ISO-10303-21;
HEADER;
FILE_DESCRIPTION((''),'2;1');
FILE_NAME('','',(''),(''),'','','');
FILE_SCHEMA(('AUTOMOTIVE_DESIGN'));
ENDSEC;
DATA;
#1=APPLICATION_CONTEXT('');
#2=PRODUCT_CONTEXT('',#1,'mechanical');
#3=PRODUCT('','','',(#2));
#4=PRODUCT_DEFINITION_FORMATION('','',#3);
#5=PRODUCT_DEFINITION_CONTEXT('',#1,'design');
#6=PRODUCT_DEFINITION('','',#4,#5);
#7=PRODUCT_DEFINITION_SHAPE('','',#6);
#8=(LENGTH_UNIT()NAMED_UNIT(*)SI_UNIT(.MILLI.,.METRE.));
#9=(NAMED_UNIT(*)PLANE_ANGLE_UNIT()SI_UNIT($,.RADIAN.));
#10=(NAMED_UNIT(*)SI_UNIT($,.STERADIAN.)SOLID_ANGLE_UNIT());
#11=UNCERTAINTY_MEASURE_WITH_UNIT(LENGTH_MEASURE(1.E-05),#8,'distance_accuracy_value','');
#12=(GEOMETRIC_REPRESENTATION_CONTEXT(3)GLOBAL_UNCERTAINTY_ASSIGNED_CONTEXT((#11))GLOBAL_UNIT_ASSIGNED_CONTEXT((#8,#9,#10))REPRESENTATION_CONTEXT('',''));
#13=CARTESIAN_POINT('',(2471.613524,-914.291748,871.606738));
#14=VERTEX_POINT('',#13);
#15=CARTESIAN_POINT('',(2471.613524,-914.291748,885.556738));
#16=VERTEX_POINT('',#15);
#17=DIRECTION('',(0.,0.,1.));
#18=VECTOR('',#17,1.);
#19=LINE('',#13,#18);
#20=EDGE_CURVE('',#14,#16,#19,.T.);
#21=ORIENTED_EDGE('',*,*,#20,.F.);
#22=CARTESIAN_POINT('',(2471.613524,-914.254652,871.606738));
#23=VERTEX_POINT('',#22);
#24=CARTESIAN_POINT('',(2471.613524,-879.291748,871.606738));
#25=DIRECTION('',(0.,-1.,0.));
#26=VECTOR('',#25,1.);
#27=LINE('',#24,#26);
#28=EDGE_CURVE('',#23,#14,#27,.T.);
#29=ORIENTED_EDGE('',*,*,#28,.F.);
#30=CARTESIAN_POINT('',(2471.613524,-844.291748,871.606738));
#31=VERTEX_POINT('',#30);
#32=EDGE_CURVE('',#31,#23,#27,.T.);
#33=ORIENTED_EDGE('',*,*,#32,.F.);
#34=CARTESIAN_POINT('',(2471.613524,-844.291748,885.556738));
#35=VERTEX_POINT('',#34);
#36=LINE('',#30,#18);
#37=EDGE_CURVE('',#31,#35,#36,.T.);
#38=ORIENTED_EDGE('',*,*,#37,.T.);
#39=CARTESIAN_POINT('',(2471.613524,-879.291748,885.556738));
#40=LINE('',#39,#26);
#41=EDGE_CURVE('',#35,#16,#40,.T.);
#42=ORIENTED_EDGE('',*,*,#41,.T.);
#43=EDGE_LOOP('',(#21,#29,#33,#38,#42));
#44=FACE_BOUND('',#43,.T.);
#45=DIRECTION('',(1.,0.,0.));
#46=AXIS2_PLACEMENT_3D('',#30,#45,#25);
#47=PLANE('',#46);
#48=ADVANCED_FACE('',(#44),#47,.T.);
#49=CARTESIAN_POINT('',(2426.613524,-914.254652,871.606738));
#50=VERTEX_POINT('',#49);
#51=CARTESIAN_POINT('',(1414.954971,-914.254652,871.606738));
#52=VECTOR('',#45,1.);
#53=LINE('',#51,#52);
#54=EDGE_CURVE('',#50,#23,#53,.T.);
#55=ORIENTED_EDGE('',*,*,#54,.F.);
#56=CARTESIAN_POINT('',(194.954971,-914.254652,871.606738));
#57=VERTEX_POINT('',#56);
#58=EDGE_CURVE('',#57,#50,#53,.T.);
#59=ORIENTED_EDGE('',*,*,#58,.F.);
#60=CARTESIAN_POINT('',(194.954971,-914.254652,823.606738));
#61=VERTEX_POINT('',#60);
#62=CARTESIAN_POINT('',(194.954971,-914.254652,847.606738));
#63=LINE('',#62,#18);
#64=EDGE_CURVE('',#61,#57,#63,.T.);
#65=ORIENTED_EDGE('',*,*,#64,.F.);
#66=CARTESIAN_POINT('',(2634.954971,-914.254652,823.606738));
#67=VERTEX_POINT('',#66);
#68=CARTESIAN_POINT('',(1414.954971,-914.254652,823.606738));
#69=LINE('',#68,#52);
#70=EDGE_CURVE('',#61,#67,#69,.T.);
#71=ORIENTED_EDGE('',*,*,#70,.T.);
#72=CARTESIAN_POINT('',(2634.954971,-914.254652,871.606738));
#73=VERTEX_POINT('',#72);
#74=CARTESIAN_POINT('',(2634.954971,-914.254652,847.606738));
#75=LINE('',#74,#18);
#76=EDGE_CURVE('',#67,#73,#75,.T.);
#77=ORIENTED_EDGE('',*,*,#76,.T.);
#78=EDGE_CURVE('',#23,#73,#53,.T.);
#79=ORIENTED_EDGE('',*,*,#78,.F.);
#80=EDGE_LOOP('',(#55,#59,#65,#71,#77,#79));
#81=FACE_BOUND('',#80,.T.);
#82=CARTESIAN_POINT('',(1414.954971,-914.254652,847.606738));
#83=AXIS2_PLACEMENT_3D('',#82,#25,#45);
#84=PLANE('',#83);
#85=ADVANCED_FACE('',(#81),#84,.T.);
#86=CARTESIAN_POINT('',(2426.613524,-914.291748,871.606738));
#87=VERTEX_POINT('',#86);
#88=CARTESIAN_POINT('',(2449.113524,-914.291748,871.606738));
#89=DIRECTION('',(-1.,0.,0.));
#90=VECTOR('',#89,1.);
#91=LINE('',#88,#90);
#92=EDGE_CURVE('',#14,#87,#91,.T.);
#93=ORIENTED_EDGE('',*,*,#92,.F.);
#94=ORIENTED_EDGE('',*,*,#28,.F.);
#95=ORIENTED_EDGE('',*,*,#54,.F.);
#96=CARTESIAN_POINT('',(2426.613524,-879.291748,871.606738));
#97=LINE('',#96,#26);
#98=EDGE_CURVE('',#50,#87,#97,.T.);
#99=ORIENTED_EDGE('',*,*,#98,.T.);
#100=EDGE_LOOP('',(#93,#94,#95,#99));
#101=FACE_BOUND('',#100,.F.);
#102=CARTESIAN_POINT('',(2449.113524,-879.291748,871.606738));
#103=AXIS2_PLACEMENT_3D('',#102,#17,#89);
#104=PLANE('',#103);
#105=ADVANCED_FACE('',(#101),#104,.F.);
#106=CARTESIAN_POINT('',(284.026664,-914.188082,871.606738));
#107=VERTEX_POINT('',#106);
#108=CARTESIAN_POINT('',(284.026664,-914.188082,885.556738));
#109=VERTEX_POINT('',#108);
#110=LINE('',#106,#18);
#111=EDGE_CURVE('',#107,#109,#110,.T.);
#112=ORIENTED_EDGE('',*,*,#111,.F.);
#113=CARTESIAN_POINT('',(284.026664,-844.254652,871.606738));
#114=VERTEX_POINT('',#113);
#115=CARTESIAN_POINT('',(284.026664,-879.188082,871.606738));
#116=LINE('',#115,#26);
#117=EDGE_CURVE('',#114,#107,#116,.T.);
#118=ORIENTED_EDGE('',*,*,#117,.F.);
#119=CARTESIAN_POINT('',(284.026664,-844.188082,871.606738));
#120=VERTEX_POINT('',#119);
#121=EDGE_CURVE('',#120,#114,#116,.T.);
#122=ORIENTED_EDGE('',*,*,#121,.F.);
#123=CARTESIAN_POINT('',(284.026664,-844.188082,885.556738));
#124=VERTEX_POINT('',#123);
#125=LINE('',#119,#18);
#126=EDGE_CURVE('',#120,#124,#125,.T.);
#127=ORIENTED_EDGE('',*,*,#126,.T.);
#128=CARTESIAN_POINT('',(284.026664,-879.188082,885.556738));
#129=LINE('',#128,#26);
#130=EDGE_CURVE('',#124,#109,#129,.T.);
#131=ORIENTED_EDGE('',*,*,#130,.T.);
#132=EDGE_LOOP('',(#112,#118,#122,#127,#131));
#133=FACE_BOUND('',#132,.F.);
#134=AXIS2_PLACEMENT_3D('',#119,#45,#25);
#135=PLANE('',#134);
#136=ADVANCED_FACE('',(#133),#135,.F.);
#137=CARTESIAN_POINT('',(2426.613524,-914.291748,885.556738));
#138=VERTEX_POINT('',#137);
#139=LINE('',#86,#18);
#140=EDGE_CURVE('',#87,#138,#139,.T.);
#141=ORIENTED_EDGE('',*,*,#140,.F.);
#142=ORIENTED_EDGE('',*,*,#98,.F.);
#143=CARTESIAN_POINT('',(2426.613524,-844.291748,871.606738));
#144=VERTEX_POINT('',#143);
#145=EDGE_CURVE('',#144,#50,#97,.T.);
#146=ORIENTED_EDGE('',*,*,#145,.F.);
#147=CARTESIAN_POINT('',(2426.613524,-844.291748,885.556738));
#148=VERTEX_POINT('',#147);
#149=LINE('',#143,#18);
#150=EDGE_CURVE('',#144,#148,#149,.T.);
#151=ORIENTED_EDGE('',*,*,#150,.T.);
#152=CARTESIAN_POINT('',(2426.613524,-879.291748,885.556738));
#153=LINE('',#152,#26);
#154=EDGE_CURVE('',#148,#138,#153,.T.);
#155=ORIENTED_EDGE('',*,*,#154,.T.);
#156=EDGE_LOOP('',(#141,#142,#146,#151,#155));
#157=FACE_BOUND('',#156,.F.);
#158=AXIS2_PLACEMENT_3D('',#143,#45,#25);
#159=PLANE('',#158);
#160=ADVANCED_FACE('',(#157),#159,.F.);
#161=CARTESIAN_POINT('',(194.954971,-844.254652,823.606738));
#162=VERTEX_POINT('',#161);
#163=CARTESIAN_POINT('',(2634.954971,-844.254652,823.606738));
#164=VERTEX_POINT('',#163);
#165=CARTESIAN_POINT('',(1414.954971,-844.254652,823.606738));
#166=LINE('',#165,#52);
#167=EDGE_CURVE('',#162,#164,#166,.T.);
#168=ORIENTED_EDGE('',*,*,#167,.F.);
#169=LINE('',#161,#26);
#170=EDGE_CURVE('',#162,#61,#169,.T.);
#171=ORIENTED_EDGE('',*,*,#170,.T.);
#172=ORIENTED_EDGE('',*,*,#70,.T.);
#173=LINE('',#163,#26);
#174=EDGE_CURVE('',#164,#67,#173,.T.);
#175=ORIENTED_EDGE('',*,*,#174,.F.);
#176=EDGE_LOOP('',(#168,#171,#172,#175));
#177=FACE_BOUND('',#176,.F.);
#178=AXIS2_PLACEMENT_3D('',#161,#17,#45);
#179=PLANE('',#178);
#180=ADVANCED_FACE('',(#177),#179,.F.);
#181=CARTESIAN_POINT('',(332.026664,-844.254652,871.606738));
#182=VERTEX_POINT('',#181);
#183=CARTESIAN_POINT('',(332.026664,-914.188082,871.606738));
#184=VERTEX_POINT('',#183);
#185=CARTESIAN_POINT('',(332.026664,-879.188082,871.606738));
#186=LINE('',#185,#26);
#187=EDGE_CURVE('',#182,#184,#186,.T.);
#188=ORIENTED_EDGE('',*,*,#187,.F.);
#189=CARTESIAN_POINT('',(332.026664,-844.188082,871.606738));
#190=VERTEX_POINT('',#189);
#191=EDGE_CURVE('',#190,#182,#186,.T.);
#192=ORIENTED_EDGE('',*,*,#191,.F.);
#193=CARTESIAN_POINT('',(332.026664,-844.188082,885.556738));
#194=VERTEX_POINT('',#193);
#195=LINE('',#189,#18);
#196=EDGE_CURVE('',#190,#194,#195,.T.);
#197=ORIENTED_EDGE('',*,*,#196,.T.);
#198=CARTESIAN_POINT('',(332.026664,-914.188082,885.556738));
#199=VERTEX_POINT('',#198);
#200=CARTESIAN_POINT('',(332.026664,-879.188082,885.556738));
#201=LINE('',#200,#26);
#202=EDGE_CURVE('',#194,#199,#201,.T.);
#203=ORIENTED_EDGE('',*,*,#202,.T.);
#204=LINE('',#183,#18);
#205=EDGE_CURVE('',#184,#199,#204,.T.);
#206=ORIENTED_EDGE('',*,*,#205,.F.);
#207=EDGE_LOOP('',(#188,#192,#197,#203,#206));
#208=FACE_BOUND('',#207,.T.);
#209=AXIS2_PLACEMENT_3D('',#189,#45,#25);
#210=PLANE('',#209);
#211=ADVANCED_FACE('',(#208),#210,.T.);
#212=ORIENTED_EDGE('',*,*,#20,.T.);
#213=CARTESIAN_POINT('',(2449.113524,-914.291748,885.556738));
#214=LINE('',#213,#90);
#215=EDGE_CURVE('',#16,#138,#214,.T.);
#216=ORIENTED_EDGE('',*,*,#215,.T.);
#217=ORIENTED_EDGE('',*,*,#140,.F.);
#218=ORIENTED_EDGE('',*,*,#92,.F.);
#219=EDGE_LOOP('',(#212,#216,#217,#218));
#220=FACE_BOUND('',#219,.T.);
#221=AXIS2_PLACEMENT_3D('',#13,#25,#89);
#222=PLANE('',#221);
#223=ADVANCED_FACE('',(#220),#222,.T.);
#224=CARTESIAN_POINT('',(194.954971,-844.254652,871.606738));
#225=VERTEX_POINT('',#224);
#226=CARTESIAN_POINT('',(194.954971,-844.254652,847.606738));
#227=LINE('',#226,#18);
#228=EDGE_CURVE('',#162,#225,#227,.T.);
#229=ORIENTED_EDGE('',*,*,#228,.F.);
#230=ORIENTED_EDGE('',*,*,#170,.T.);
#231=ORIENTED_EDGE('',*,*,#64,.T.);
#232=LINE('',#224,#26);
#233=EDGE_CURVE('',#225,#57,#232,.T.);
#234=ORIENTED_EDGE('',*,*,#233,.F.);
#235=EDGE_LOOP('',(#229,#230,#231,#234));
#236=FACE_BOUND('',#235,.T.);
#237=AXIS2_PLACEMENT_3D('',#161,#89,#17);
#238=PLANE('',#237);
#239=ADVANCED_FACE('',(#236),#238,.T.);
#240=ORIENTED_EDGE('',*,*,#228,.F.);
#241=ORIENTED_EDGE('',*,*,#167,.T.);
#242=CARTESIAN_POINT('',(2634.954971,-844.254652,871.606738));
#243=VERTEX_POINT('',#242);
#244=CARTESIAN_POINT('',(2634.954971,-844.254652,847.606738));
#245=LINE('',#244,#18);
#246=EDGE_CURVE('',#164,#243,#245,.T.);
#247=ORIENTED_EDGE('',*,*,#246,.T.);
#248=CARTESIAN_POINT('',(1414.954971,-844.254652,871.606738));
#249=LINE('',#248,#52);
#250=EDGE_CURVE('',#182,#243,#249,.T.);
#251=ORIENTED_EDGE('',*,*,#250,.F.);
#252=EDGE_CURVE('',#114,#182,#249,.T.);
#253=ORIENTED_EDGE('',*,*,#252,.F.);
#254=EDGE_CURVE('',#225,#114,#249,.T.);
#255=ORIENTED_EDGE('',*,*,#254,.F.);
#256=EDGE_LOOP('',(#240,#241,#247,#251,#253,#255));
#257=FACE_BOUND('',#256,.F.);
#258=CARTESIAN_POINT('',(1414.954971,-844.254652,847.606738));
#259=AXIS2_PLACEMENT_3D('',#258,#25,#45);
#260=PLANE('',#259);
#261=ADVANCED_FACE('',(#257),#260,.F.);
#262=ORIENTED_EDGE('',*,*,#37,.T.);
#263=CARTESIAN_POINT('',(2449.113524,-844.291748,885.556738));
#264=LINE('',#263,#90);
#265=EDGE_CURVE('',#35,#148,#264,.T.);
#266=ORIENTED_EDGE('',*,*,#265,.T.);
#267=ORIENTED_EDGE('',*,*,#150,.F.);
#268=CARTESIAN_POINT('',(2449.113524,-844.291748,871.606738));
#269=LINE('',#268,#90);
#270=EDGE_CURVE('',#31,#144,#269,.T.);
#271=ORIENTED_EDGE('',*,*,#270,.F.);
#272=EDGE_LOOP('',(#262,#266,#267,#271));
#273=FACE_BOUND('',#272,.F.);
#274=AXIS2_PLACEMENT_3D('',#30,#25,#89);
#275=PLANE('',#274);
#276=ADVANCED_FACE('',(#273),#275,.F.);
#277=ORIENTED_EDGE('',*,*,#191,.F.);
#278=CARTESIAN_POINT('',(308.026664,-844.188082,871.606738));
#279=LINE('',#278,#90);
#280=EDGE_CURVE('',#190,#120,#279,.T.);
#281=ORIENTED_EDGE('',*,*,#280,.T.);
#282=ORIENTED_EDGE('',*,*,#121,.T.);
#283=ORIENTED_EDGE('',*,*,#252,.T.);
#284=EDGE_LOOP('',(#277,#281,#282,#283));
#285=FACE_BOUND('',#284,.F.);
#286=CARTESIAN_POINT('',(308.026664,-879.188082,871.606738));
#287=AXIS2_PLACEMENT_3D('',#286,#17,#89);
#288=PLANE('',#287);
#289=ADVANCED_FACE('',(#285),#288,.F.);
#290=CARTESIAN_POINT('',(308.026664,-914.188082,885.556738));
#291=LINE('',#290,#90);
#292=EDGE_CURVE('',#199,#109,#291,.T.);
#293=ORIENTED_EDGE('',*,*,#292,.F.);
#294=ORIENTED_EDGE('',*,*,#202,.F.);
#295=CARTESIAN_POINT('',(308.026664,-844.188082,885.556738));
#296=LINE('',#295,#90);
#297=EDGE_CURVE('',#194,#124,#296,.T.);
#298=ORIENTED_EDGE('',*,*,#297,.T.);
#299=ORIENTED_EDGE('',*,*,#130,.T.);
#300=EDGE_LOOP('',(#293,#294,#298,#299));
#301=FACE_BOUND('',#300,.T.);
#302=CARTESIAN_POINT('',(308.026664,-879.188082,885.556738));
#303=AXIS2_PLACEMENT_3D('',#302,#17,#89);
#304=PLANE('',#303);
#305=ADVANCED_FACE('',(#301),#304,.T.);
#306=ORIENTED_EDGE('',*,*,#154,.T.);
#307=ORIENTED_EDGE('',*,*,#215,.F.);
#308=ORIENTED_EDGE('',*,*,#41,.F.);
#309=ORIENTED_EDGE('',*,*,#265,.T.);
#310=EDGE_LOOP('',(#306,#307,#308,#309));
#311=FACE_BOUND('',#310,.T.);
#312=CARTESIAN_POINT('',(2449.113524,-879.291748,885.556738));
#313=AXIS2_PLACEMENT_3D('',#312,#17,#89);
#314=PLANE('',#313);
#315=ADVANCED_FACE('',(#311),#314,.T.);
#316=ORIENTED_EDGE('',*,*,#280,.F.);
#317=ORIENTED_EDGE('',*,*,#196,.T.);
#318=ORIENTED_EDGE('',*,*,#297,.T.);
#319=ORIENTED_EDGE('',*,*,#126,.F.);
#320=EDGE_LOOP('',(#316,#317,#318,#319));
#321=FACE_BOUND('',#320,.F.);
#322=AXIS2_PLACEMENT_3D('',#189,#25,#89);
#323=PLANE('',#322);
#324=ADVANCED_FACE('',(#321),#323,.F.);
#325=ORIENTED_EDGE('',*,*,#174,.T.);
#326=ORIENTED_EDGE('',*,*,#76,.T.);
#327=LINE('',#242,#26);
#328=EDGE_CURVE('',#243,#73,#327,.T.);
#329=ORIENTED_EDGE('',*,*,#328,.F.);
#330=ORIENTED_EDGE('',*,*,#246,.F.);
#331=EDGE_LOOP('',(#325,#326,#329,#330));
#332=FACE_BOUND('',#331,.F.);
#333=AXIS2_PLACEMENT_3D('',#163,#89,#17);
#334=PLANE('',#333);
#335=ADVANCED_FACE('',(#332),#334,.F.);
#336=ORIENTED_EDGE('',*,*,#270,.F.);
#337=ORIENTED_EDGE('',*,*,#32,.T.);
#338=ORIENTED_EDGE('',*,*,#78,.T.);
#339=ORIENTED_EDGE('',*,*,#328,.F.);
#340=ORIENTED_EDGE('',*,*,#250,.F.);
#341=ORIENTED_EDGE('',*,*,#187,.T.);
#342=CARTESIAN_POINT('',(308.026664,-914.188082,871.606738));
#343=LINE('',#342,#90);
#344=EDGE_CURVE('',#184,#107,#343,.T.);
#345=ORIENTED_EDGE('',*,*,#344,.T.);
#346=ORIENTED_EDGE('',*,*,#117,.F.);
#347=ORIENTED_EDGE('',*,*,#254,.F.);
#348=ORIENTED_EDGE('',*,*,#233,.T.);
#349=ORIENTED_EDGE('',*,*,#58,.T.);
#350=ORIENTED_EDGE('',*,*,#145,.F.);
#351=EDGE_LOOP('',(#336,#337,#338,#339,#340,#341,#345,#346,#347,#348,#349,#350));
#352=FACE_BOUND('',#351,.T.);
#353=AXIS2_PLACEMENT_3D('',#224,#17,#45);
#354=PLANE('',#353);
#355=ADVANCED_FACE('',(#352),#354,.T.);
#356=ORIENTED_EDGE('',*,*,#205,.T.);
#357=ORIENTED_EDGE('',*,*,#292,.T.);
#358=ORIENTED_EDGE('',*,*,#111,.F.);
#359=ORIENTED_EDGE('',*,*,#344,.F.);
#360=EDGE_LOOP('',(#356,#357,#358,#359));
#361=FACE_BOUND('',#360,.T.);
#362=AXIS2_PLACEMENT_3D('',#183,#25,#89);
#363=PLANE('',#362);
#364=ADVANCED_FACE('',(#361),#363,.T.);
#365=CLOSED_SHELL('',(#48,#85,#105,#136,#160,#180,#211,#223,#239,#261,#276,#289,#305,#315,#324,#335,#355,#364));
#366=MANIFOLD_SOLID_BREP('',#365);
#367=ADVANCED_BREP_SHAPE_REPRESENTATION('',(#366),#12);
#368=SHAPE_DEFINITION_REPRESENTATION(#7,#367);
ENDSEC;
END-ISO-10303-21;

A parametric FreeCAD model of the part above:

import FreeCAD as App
import Part
import Sketcher

doc = App.newDocument("Part")
params = doc.addObject("Spreadsheet::Sheet", "Params")
for row, (alias, value) in enumerate([
    ("sketch1_width", "2440 mm"),
    ("sketch1_height", "48 mm"),
    ("pad1_length", "70 mm"),
    ("sketch2_width", "45 mm"),
    ("sketch2_height", "70 mm"),
    ("pad2_length", "13.95 mm"),
    ("sketch3_width", "48 mm"),
    ("sketch3_height", "70 mm"),
    ("pad3_length", "13.95 mm"),
], start=1):
    params.set(f"A{row}", alias)
    params.set(f"B{row}", "=" + value)
    params.setAlias(f"B{row}", alias)

body = doc.addObject("PartDesign::Body", "Body")

sketch1 = doc.addObject("Sketcher::SketchObject", "Sketch")
body.addObject(sketch1)
sketch1.AttachmentSupport = (doc.XZ_Plane, [""])
sketch1.MapMode = "FlatFace"
sketch1.addGeometry(Part.LineSegment(App.Vector(195, 883, 0), App.Vector(195, 835, 0)), False)
sketch1.addGeometry(Part.LineSegment(App.Vector(195, 835, 0), App.Vector(2635, 835, 0)), False)
sketch1.addGeometry(Part.LineSegment(App.Vector(2635, 835, 0), App.Vector(2635, 883, 0)), False)
sketch1.addGeometry(Part.LineSegment(App.Vector(2635, 883, 0), App.Vector(195, 883, 0)), False)
sketch1.addConstraint(Sketcher.Constraint("Coincident", 0, 2, 1, 1))
sketch1.addConstraint(Sketcher.Constraint("Coincident", 1, 2, 2, 1))
sketch1.addConstraint(Sketcher.Constraint("Coincident", 2, 2, 3, 1))
sketch1.addConstraint(Sketcher.Constraint("Coincident", 3, 2, 0, 1))
sketch1.addConstraint(Sketcher.Constraint("Vertical", 0))
sketch1.addConstraint(Sketcher.Constraint("Horizontal", 1))
sketch1.addConstraint(Sketcher.Constraint("Vertical", 2))
sketch1.addConstraint(Sketcher.Constraint("Horizontal", 3))
sketch1.addConstraint(Sketcher.Constraint("DistanceX", 1, 1, 1, 2, 2440.0))
sketch1.addConstraint(Sketcher.Constraint("DistanceY", 0, 2, 0, 1, 48.0))
sketch1.addConstraint(Sketcher.Constraint("DistanceY", -1, 1, 0, 2, 835.0))
sketch1.addConstraint(Sketcher.Constraint("DistanceX", -1, 1, 0, 2, 194.96))
sketch1.setExpression("Constraints[8]", "Params.sketch1_width")
sketch1.setExpression("Constraints[9]", "Params.sketch1_height")
pad1 = doc.addObject("PartDesign::Pad", "Pad")
body.addObject(pad1)
pad1.Profile = sketch1
pad1.setExpression("Length", "Params.pad1_length")

sketch2 = doc.addObject("Sketcher::SketchObject", "Sketch001")
body.addObject(sketch2)
sketch2.AttachmentSupport = (doc.XY_Plane, [""])
sketch2.MapMode = "FlatFace"
sketch2.AttachmentOffset = App.Placement(App.Vector(0, 0, 883), App.Rotation())
sketch2.addGeometry(Part.LineSegment(App.Vector(2472, -70, 0), App.Vector(2472, 0, 0)), False)
sketch2.addGeometry(Part.LineSegment(App.Vector(2472, 0, 0), App.Vector(2427, 0, 0)), False)
sketch2.addGeometry(Part.LineSegment(App.Vector(2427, 0, 0), App.Vector(2427, -70, 0)), False)
sketch2.addGeometry(Part.LineSegment(App.Vector(2427, -70, 0), App.Vector(2472, -70, 0)), False)
sketch2.addConstraint(Sketcher.Constraint("Coincident", 0, 2, 1, 1))
sketch2.addConstraint(Sketcher.Constraint("Coincident", 1, 2, 2, 1))
sketch2.addConstraint(Sketcher.Constraint("Coincident", 2, 2, 3, 1))
sketch2.addConstraint(Sketcher.Constraint("Coincident", 3, 2, 0, 1))
sketch2.addConstraint(Sketcher.Constraint("Vertical", 0))
sketch2.addConstraint(Sketcher.Constraint("Horizontal", 1))
sketch2.addConstraint(Sketcher.Constraint("Vertical", 2))
sketch2.addConstraint(Sketcher.Constraint("Horizontal", 3))
sketch2.addConstraint(Sketcher.Constraint("DistanceX", 1, 2, 1, 1, 45.0))
sketch2.addConstraint(Sketcher.Constraint("DistanceY", 0, 1, 0, 2, 70.0))
sketch2.addConstraint(Sketcher.Constraint("DistanceX", -1, 1, 0, 2, 2471.618553))
sketch2.addConstraint(Sketcher.Constraint("DistanceY", 0, 2, -1, 1, 0.037096))
sketch2.setExpression("Constraints[8]", "Params.sketch2_width")
sketch2.setExpression("Constraints[9]", "Params.sketch2_height")
pad2 = doc.addObject("PartDesign::Pad", "Pad001")
body.addObject(pad2)
pad2.Profile = sketch2
pad2.setExpression("Length", "Params.pad2_length")

sketch3 = doc.addObject("Sketcher::SketchObject", "Sketch002")
body.addObject(sketch3)
sketch3.AttachmentSupport = (doc.XY_Plane, [""])
sketch3.MapMode = "FlatFace"
sketch3.AttachmentOffset = App.Placement(App.Vector(0, 0, 883), App.Rotation())
sketch3.addGeometry(Part.LineSegment(App.Vector(332, -70, 0), App.Vector(332, 0, 0)), False)
sketch3.addGeometry(Part.LineSegment(App.Vector(332, 0, 0), App.Vector(284, 0, 0)), False)
sketch3.addGeometry(Part.LineSegment(App.Vector(284, 0, 0), App.Vector(284, -70, 0)), False)
sketch3.addGeometry(Part.LineSegment(App.Vector(284, -70, 0), App.Vector(332, -70, 0)), False)
sketch3.addConstraint(Sketcher.Constraint("Coincident", 0, 2, 1, 1))
sketch3.addConstraint(Sketcher.Constraint("Coincident", 1, 2, 2, 1))
sketch3.addConstraint(Sketcher.Constraint("Coincident", 2, 2, 3, 1))
sketch3.addConstraint(Sketcher.Constraint("Coincident", 3, 2, 0, 1))
sketch3.addConstraint(Sketcher.Constraint("Vertical", 0))
sketch3.addConstraint(Sketcher.Constraint("Horizontal", 1))
sketch3.addConstraint(Sketcher.Constraint("Vertical", 2))
sketch3.addConstraint(Sketcher.Constraint("Horizontal", 3))
sketch3.addConstraint(Sketcher.Constraint("DistanceX", 1, 2, 1, 1, 48.0))
sketch3.addConstraint(Sketcher.Constraint("DistanceY", 0, 1, 0, 2, 70.0))
sketch3.addConstraint(Sketcher.Constraint("DistanceY", -1, 1, 0, 2, 0.06657))
sketch3.addConstraint(Sketcher.Constraint("DistanceX", -1, 1, 0, 2, 332.031693))
sketch3.setExpression("Constraints[8]", "Params.sketch3_width")
sketch3.setExpression("Constraints[9]", "Params.sketch3_height")
pad3 = doc.addObject("PartDesign::Pad", "Pad002")
body.addObject(pad3)
pad3.Profile = sketch3
pad3.setExpression("Length", "Params.pad3_length")
body2 = doc.addObject("PartDesign::Body", "Body001")
doc.recompute()

body.Placement = App.Placement(App.Vector(-0.005029, -844.254652, -11.393262), App.Rotation(App.Vector(0, 0, 1), 0))
boolean = doc.addObject("PartDesign::Boolean", "Boolean")
body2.addObject(boolean)
boolean.Type = "Fuse"
boolean.addObjects([body])

doc.recompute()
